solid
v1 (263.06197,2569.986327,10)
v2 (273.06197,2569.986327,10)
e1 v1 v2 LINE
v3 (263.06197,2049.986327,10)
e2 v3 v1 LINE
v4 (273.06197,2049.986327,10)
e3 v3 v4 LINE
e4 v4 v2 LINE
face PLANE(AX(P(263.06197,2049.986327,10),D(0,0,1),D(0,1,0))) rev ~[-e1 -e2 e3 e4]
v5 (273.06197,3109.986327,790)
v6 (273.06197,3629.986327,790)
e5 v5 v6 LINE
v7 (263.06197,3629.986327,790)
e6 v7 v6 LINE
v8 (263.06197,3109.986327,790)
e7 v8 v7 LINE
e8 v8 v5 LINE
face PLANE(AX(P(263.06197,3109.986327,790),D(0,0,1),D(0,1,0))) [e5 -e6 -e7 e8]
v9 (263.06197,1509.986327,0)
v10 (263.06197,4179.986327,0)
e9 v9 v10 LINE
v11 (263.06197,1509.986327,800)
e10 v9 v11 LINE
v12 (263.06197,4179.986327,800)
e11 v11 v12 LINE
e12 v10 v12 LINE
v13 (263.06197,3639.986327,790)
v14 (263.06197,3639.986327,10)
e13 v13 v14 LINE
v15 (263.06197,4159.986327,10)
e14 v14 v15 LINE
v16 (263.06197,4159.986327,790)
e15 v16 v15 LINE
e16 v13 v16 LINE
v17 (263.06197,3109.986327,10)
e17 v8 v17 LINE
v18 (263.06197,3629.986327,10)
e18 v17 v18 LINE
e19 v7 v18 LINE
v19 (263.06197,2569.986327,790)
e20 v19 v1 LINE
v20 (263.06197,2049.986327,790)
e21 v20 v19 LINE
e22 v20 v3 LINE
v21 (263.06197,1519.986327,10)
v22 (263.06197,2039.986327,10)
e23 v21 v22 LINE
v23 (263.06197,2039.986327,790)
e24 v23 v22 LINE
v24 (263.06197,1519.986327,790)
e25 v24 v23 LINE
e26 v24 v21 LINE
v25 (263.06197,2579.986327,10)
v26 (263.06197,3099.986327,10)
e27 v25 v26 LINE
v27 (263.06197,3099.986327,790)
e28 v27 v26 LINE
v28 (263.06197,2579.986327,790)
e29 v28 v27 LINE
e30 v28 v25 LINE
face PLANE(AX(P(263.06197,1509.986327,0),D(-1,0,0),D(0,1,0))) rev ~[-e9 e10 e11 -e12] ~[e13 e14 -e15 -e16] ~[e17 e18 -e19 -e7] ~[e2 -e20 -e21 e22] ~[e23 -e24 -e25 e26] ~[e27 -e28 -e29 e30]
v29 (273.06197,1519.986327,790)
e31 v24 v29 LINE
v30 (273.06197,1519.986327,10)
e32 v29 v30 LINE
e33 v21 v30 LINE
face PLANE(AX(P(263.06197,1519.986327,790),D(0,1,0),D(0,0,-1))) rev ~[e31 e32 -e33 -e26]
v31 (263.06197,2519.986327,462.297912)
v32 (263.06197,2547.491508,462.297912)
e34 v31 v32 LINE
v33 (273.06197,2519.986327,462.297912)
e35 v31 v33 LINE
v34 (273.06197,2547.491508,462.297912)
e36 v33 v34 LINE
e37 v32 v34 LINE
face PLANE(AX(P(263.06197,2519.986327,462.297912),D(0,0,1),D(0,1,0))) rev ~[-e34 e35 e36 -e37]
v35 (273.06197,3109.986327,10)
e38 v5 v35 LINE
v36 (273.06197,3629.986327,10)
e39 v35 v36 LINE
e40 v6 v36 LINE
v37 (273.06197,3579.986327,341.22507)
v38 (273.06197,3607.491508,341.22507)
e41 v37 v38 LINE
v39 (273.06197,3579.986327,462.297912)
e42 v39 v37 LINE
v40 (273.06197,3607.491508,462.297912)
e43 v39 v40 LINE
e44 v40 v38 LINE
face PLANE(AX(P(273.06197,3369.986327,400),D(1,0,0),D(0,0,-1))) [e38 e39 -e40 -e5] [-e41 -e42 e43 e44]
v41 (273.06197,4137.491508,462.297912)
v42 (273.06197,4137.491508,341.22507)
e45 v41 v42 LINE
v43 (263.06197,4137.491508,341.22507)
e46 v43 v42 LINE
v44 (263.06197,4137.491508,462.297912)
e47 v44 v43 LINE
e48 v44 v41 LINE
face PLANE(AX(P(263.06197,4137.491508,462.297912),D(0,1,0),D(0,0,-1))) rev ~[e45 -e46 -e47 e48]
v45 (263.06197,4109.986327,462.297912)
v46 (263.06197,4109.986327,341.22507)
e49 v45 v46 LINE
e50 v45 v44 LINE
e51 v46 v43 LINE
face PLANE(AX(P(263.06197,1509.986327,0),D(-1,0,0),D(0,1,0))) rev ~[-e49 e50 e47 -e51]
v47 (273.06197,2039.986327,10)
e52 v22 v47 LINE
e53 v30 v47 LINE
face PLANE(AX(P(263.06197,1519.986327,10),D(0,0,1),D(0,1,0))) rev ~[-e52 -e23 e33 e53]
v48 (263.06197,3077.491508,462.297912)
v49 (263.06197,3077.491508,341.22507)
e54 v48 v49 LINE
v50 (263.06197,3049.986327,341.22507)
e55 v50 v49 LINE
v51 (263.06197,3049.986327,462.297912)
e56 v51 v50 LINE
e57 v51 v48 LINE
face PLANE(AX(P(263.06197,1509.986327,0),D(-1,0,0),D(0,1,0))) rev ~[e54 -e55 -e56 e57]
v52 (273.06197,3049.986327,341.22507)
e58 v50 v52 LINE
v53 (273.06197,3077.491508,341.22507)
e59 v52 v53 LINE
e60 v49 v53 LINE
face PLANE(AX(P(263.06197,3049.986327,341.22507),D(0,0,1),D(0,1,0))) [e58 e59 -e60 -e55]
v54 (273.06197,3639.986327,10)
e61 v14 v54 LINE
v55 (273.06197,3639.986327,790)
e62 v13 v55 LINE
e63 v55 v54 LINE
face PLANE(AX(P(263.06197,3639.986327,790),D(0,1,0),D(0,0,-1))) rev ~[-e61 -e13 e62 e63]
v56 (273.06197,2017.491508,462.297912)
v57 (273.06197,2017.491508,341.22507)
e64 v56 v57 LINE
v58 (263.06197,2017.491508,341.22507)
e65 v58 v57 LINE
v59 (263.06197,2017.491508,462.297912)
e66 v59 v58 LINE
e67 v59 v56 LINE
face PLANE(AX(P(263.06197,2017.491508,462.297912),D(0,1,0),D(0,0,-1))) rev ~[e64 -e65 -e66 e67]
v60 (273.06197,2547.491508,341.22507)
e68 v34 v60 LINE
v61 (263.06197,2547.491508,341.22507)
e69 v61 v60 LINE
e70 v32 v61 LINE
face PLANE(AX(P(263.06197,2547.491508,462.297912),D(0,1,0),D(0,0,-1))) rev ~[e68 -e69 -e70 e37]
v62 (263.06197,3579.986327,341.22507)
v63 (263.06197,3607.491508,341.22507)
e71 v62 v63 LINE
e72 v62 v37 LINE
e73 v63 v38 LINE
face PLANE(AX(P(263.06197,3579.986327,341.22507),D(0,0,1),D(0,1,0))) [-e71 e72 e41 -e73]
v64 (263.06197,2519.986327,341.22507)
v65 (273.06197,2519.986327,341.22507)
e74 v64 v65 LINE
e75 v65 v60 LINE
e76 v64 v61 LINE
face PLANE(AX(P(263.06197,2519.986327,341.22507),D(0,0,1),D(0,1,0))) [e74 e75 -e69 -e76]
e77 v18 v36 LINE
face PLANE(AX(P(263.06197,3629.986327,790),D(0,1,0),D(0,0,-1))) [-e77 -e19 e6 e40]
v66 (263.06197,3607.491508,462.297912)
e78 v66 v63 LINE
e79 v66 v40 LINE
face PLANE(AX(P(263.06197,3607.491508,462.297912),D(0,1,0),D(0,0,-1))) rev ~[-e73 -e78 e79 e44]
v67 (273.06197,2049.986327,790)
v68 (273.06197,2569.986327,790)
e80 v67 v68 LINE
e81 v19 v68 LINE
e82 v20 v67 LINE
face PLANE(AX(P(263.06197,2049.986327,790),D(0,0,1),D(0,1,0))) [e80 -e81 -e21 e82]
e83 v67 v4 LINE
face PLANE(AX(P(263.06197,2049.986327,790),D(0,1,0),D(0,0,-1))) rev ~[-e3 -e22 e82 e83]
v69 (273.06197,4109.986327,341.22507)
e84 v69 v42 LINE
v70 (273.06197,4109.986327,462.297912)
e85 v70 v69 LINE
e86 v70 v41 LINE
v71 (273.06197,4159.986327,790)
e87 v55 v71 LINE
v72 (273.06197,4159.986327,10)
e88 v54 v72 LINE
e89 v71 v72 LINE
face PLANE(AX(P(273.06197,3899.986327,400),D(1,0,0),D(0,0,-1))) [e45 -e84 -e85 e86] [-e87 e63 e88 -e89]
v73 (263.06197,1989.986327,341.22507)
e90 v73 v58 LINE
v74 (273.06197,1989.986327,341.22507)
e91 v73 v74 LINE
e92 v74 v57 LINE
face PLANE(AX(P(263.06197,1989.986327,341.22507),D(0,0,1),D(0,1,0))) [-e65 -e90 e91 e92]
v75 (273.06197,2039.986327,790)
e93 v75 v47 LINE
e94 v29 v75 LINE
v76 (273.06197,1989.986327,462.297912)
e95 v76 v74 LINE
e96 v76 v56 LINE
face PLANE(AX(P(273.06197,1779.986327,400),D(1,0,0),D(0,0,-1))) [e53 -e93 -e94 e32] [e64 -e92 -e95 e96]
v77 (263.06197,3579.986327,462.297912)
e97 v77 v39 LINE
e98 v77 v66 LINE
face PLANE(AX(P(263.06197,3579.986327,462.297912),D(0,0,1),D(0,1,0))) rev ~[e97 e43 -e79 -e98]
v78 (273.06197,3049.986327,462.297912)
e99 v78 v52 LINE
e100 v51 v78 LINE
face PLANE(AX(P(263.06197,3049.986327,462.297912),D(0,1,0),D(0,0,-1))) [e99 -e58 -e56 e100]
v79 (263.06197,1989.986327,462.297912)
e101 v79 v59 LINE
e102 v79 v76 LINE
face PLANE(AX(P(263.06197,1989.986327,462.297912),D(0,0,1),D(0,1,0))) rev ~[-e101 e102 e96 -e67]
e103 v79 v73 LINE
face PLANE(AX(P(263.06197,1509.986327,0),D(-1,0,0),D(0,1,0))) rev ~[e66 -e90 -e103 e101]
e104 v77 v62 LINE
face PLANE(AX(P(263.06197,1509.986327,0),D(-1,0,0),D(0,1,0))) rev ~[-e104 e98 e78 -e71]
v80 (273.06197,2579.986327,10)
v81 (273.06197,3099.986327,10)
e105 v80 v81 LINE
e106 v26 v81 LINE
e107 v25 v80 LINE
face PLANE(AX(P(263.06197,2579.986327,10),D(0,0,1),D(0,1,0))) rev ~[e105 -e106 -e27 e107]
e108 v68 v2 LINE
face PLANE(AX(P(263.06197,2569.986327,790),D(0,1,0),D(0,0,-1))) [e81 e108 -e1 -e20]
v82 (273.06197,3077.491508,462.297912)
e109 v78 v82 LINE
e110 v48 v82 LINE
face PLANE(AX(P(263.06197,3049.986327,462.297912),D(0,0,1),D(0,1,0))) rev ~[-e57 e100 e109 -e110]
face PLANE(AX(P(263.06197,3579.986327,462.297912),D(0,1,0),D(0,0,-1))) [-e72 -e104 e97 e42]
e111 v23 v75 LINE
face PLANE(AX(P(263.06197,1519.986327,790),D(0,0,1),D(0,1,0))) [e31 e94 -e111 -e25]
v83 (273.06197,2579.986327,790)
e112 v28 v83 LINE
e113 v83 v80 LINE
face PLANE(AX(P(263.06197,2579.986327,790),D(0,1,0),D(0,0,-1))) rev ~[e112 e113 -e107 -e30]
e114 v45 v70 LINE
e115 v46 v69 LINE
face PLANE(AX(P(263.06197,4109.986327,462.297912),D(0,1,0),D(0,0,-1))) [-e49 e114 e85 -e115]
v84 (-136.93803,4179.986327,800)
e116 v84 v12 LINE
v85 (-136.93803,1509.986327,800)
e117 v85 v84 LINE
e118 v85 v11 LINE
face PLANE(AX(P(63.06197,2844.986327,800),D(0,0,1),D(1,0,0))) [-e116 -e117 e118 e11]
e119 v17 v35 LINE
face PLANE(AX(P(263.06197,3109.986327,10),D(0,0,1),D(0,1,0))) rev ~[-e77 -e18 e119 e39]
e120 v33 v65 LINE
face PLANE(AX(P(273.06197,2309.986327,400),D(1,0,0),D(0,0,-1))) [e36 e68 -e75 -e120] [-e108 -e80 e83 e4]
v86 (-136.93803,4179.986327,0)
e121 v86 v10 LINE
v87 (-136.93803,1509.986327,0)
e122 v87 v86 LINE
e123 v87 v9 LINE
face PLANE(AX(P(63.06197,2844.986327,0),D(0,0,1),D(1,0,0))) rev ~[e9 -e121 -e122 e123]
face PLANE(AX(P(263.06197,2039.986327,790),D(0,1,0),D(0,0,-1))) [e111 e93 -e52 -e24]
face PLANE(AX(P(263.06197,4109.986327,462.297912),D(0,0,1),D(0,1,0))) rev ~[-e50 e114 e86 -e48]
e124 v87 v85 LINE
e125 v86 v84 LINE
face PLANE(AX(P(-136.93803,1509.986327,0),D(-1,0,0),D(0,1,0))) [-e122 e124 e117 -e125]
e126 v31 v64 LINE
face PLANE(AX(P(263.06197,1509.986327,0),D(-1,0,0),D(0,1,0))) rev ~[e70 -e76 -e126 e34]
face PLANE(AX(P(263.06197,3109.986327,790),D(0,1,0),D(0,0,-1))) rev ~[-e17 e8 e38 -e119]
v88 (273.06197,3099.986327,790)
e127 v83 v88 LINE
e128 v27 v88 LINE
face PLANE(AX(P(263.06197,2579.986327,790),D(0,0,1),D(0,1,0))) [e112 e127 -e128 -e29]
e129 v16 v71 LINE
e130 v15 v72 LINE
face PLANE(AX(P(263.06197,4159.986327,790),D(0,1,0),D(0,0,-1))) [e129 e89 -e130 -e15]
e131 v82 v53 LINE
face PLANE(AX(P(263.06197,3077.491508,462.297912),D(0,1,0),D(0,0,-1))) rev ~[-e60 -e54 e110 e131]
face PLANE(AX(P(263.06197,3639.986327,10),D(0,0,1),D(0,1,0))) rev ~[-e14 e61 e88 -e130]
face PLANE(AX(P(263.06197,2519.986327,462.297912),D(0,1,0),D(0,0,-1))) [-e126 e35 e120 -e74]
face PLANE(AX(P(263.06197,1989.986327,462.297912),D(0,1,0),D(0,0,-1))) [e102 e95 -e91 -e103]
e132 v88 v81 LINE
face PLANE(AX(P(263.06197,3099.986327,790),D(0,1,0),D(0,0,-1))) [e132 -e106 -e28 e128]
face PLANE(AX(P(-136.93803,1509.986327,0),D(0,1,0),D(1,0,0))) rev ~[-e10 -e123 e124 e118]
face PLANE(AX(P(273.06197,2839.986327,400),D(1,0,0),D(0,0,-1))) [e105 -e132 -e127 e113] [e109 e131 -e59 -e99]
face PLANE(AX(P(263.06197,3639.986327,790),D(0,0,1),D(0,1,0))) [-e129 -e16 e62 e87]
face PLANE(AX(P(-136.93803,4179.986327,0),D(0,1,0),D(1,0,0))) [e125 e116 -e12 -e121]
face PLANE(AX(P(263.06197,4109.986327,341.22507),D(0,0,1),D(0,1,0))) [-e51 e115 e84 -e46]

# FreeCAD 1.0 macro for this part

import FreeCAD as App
import Part
import Sketcher

V = App.Vector
Q = App.Units.Quantity

doc = App.newDocument("Part")
body = doc.addObject("PartDesign::Body", "Body")

sketch1 = body.newObject("Sketcher::SketchObject", "Sketch")
sketch1.AttachmentSupport = (doc.getObject("XY_Plane"), [""])
sketch1.MapMode = "FlatFace"
sketch1.addGeometry([
    Part.LineSegment(V(-137, 4180, 0), V(-137, 1510, 0)),
    Part.LineSegment(V(-137, 1510, 0), V(263, 1510, 0)),
    Part.LineSegment(V(263, 1510, 0), V(263, 4180, 0)),
    Part.LineSegment(V(263, 4180, 0), V(-137, 4180, 0)),
], False)
sketch1.addConstraint([
    Sketcher.Constraint("Coincident", 0, 2, 1, 1),
    Sketcher.Constraint("Coincident", 1, 2, 2, 1),
    Sketcher.Constraint("Coincident", 2, 2, 3, 1),
    Sketcher.Constraint("Coincident", 3, 2, 0, 1),
    Sketcher.Constraint("Vertical", 0),
    Sketcher.Constraint("Horizontal", 1),
    Sketcher.Constraint("Vertical", 2),
    Sketcher.Constraint("Horizontal", 3),
    Sketcher.Constraint("DistanceX", 1, 1, 1, 2, Q("400 mm")),
    Sketcher.Constraint("DistanceY", 0, 2, 0, 1, Q("2670 mm")),
    Sketcher.Constraint("DistanceX", 0, 2, -1, 1, Q("136.93803 mm")),
    Sketcher.Constraint("DistanceY", -1, 1, 0, 2, Q("1509.986327 mm")),
])
pad1 = body.newObject("PartDesign::Pad", "Pad")
pad1.Profile = sketch1
pad1.Length = 800

sketch2 = body.newObject("Sketcher::SketchObject", "Sketch001")
sketch2.AttachmentSupport = (doc.getObject("YZ_Plane"), [""])
sketch2.MapMode = "FlatFace"
sketch2.AttachmentOffset = App.Placement(V(0, 0, 263.06197), App.Rotation())
sketch2.addGeometry([
    Part.LineSegment(V(2570, 790, 0), V(2050, 790, 0)),
    Part.LineSegment(V(2050, 790, 0), V(2050, 10, 0)),
    Part.LineSegment(V(2050, 10, 0), V(2570, 10, 0)),
    Part.LineSegment(V(2570, 10, 0), V(2570, 790, 0)),
    Part.LineSegment(V(2520, 341, 0), V(2520, 462, 0)),
    Part.LineSegment(V(2520, 462, 0), V(2547, 462, 0)),
    Part.LineSegment(V(2547, 462, 0), V(2547, 341, 0)),
    Part.LineSegment(V(2547, 341, 0), V(2520, 341, 0)),
    Part.LineSegment(V(3100, 790, 0), V(2580, 790, 0)),
    Part.LineSegment(V(2580, 790, 0), V(2580, 10, 0)),
    Part.LineSegment(V(2580, 10, 0), V(3100, 10, 0)),
    Part.LineSegment(V(3100, 10, 0), V(3100, 790, 0)),
    Part.LineSegment(V(3050, 341, 0), V(3050, 462, 0)),
    Part.LineSegment(V(3050, 462, 0), V(3077, 462, 0)),
    Part.LineSegment(V(3077, 462, 0), V(3077, 341, 0)),
    Part.LineSegment(V(3077, 341, 0), V(3050, 341, 0)),
    Part.LineSegment(V(3630, 790, 0), V(3110, 790, 0)),
    Part.LineSegment(V(3110, 790, 0), V(3110, 10, 0)),
    Part.LineSegment(V(3110, 10, 0), V(3630, 10, 0)),
    Part.LineSegment(V(3630, 10, 0), V(3630, 790, 0)),
    Part.LineSegment(V(3580, 341, 0), V(3580, 462, 0)),
    Part.LineSegment(V(3580, 462, 0), V(3607, 462, 0)),
    Part.LineSegment(V(3607, 462, 0), V(3607, 341, 0)),
    Part.LineSegment(V(3607, 341, 0), V(3580, 341, 0)),
    Part.LineSegment(V(4160, 790, 0), V(3640, 790, 0)),
    Part.LineSegment(V(3640, 790, 0), V(3640, 10, 0)),
    Part.LineSegment(V(3640, 10, 0), V(4160, 10, 0)),
    Part.LineSegment(V(4160, 10, 0), V(4160, 790, 0)),
    Part.LineSegment(V(4110, 341, 0), V(4110, 462, 0)),
    Part.LineSegment(V(4110, 462, 0), V(4137, 462, 0)),
    Part.LineSegment(V(4137, 462, 0), V(4137, 341, 0)),
    Part.LineSegment(V(4137, 341, 0), V(4110, 341, 0)),
    Part.LineSegment(V(2040, 790, 0), V(1520, 790, 0)),
    Part.LineSegment(V(1520, 790, 0), V(1520, 10, 0)),
    Part.LineSegment(V(1520, 10, 0), V(2040, 10, 0)),
    Part.LineSegment(V(2040, 10, 0), V(2040, 790, 0)),
    Part.LineSegment(V(1990, 341, 0), V(1990, 462, 0)),
    Part.LineSegment(V(1990, 462, 0), V(2017, 462, 0)),
    Part.LineSegment(V(2017, 462, 0), V(2017, 341, 0)),
    Part.LineSegment(V(2017, 341, 0), V(1990, 341, 0)),
], False)
sketch2.addConstraint([
    Sketcher.Constraint("Coincident", 0, 2, 1, 1),
    Sketcher.Constraint("Coincident", 1, 2, 2, 1),
    Sketcher.Constraint("Coincident", 2, 2, 3, 1),
    Sketcher.Constraint("Coincident", 3, 2, 0, 1),
    Sketcher.Constraint("Coincident", 4, 2, 5, 1),
    Sketcher.Constraint("Coincident", 5, 2, 6, 1),
    Sketcher.Constraint("Coincident", 6, 2, 7, 1),
    Sketcher.Constraint("Coincident", 7, 2, 4, 1),
    Sketcher.Constraint("Coincident", 8, 2, 9, 1),
    Sketcher.Constraint("Coincident", 9, 2, 10, 1),
    Sketcher.Constraint("Coincident", 10, 2, 11, 1),
    Sketcher.Constraint("Coincident", 11, 2, 8, 1),
    Sketcher.Constraint("Coincident", 12, 2, 13, 1),
    Sketcher.Constraint("Coincident", 13, 2, 14, 1),
    Sketcher.Constraint("Coincident", 14, 2, 15, 1),
    Sketcher.Constraint("Coincident", 15, 2, 12, 1),
    Sketcher.Constraint("Coincident", 16, 2, 17, 1),
    Sketcher.Constraint("Coincident", 17, 2, 18, 1),
    Sketcher.Constraint("Coincident", 18, 2, 19, 1),
    Sketcher.Constraint("Coincident", 19, 2, 16, 1),
    Sketcher.Constraint("Coincident", 20, 2, 21, 1),
    Sketcher.Constraint("Coincident", 21, 2, 22, 1),
    Sketcher.Constraint("Coincident", 22, 2, 23, 1),
    Sketcher.Constraint("Coincident", 23, 2, 20, 1),
    Sketcher.Constraint("Coincident", 24, 2, 25, 1),
    Sketcher.Constraint("Coincident", 25, 2, 26, 1),
    Sketcher.Constraint("Coincident", 26, 2, 27, 1),
    Sketcher.Constraint("Coincident", 27, 2, 24, 1),
    Sketcher.Constraint("Coincident", 28, 2, 29, 1),
    Sketcher.Constraint("Coincident", 29, 2, 30, 1),
    Sketcher.Constraint("Coincident", 30, 2, 31, 1),
    Sketcher.Constraint("Coincident", 31, 2, 28, 1),
    Sketcher.Constraint("Coincident", 32, 2, 33, 1),
    Sketcher.Constraint("Coincident", 33, 2, 34, 1),
    Sketcher.Constraint("Coincident", 34, 2, 35, 1),
    Sketcher.Constraint("Coincident", 35, 2, 32, 1),
    Sketcher.Constraint("Coincident", 36, 2, 37, 1),
    Sketcher.Constraint("Coincident", 37, 2, 38, 1),
    Sketcher.Constraint("Coincident", 38, 2, 39, 1),
    Sketcher.Constraint("Coincident", 39, 2, 36, 1),
    Sketcher.Constraint("Horizontal", 0),
    Sketcher.Constraint("Vertical", 1),
    Sketcher.Constraint("Horizontal", 2),
    Sketcher.Constraint("Vertical", 3),
    Sketcher.Constraint("Vertical", 4),
    Sketcher.Constraint("Horizontal", 5),
    Sketcher.Constraint("Vertical", 6),
    Sketcher.Constraint("Horizontal", 7),
    Sketcher.Constraint("Horizontal", 8),
    Sketcher.Constraint("Vertical", 9),
    Sketcher.Constraint("Horizontal", 10),
    Sketcher.Constraint("Vertical", 11),
    Sketcher.Constraint("Vertical", 12),
    Sketcher.Constraint("Horizontal", 13),
    Sketcher.Constraint("Vertical", 14),
    Sketcher.Constraint("Horizontal", 15),
    Sketcher.Constraint("Horizontal", 16),
    Sketcher.Constraint("Vertical", 17),
    Sketcher.Constraint("Horizontal", 18),
    Sketcher.Constraint("Vertical", 19),
    Sketcher.Constraint("Vertical", 20),
    Sketcher.Constraint("Horizontal", 21),
    Sketcher.Constraint("Vertical", 22),
    Sketcher.Constraint("Horizontal", 23),
    Sketcher.Constraint("Horizontal", 24),
    Sketcher.Constraint("Vertical", 25),
    Sketcher.Constraint("Horizontal", 26),
    Sketcher.Constraint("Vertical", 27),
    Sketcher.Constraint("Vertical", 28),
    Sketcher.Constraint("Horizontal", 29),
    Sketcher.Constraint("Vertical", 30),
    Sketcher.Constraint("Horizontal", 31),
    Sketcher.Constraint("Horizontal", 32),
    Sketcher.Constraint("Vertical", 33),
    Sketcher.Constraint("Horizontal", 34),
    Sketcher.Constraint("Vertical", 35),
    Sketcher.Constraint("Vertical", 36),
    Sketcher.Constraint("Horizontal", 37),
    Sketcher.Constraint("Vertical", 38),
    Sketcher.Constraint("Horizontal", 39),
    Sketcher.Constraint("Horizontal", 3, 2, 8, 2),
    Sketcher.Constraint("Horizontal", 2, 2, 9, 2),
    Sketcher.Constraint("Horizontal", 5, 2, 12, 2),
    Sketcher.Constraint("Horizontal", 7, 2, 14, 2),
    Sketcher.Constraint("Horizontal", 11, 2, 16, 2),
    Sketcher.Constraint("Horizontal", 10, 2, 17, 2),
    Sketcher.Constraint("Horizontal", 13, 2, 20, 2),
    Sketcher.Constraint("Horizontal", 15, 2, 22, 2),
    Sketcher.Constraint("Horizontal", 19, 2, 24, 2),
    Sketcher.Constraint("Horizontal", 18, 2, 25, 2),
    Sketcher.Constraint("Horizontal", 21, 2, 28, 2),
    Sketcher.Constraint("Horizontal", 23, 2, 30, 2),
    Sketcher.Constraint("Horizontal", 27, 2, 32, 2),
    Sketcher.Constraint("Horizontal", 26, 2, 33, 2),
    Sketcher.Constraint("Horizontal", 29, 2, 36, 2),
    Sketcher.Constraint("Horizontal", 31, 2, 38, 2),
    Sketcher.Constraint("Equal", 2, 8),
    Sketcher.Constraint("Equal", 7, 13),
    Sketcher.Constraint("Equal", 10, 16),
    Sketcher.Constraint("Equal", 15, 21),
    Sketcher.Constraint("Equal", 18, 24),
    Sketcher.Constraint("Equal", 23, 29),
    Sketcher.Constraint("Equal", 26, 32),
    Sketcher.Constraint("Equal", 31, 37),
    Sketcher.Constraint("DistanceX", 0, 2, 0, 1, Q("520 mm")),
    Sketcher.Constraint("DistanceY", 1, 2, 1, 1, Q("780 mm")),
    Sketcher.Constraint("DistanceY", -1, 1, 0, 2, Q("790 mm")),
    Sketcher.Constraint("DistanceX", 4, 2, 3, 2, Q("50 mm")),
    Sketcher.Constraint("DistanceX", 3, 2, 8, 2, Q("10 mm")),
    Sketcher.Constraint("DistanceX", 12, 2, 11, 2, Q("50 mm")),
    Sketcher.Constraint("DistanceX", 11, 2, 16, 2, Q("10 mm")),
    Sketcher.Constraint("DistanceX", 20, 2, 19, 2, Q("50 mm")),
    Sketcher.Constraint("DistanceX", 19, 2, 24, 2, Q("10 mm")),
    Sketcher.Constraint("DistanceX", 28, 2, 27, 2, Q("50 mm")),
    Sketcher.Constraint("DistanceX", 32, 2, 0, 2, Q("530 mm")),
    Sketcher.Constraint("DistanceX", 36, 2, 35, 2, Q("50 mm")),
    Sketcher.Constraint("DistanceX", 5, 1, 5, 2, Q("27.505181 mm")),
    Sketcher.Constraint("DistanceY", 4, 1, 4, 2, Q("121.072842 mm")),
    Sketcher.Constraint("DistanceX", -1, 1, 5, 2, Q("2547.491508 mm")),
    Sketcher.Constraint("DistanceY", -1, 1, 6, 2, Q("341.22507 mm")),
])
pad2 = body.newObject("PartDesign::Pad", "Pad001")
pad2.Profile = sketch2
pad2.Length = 10

doc.recompute()
